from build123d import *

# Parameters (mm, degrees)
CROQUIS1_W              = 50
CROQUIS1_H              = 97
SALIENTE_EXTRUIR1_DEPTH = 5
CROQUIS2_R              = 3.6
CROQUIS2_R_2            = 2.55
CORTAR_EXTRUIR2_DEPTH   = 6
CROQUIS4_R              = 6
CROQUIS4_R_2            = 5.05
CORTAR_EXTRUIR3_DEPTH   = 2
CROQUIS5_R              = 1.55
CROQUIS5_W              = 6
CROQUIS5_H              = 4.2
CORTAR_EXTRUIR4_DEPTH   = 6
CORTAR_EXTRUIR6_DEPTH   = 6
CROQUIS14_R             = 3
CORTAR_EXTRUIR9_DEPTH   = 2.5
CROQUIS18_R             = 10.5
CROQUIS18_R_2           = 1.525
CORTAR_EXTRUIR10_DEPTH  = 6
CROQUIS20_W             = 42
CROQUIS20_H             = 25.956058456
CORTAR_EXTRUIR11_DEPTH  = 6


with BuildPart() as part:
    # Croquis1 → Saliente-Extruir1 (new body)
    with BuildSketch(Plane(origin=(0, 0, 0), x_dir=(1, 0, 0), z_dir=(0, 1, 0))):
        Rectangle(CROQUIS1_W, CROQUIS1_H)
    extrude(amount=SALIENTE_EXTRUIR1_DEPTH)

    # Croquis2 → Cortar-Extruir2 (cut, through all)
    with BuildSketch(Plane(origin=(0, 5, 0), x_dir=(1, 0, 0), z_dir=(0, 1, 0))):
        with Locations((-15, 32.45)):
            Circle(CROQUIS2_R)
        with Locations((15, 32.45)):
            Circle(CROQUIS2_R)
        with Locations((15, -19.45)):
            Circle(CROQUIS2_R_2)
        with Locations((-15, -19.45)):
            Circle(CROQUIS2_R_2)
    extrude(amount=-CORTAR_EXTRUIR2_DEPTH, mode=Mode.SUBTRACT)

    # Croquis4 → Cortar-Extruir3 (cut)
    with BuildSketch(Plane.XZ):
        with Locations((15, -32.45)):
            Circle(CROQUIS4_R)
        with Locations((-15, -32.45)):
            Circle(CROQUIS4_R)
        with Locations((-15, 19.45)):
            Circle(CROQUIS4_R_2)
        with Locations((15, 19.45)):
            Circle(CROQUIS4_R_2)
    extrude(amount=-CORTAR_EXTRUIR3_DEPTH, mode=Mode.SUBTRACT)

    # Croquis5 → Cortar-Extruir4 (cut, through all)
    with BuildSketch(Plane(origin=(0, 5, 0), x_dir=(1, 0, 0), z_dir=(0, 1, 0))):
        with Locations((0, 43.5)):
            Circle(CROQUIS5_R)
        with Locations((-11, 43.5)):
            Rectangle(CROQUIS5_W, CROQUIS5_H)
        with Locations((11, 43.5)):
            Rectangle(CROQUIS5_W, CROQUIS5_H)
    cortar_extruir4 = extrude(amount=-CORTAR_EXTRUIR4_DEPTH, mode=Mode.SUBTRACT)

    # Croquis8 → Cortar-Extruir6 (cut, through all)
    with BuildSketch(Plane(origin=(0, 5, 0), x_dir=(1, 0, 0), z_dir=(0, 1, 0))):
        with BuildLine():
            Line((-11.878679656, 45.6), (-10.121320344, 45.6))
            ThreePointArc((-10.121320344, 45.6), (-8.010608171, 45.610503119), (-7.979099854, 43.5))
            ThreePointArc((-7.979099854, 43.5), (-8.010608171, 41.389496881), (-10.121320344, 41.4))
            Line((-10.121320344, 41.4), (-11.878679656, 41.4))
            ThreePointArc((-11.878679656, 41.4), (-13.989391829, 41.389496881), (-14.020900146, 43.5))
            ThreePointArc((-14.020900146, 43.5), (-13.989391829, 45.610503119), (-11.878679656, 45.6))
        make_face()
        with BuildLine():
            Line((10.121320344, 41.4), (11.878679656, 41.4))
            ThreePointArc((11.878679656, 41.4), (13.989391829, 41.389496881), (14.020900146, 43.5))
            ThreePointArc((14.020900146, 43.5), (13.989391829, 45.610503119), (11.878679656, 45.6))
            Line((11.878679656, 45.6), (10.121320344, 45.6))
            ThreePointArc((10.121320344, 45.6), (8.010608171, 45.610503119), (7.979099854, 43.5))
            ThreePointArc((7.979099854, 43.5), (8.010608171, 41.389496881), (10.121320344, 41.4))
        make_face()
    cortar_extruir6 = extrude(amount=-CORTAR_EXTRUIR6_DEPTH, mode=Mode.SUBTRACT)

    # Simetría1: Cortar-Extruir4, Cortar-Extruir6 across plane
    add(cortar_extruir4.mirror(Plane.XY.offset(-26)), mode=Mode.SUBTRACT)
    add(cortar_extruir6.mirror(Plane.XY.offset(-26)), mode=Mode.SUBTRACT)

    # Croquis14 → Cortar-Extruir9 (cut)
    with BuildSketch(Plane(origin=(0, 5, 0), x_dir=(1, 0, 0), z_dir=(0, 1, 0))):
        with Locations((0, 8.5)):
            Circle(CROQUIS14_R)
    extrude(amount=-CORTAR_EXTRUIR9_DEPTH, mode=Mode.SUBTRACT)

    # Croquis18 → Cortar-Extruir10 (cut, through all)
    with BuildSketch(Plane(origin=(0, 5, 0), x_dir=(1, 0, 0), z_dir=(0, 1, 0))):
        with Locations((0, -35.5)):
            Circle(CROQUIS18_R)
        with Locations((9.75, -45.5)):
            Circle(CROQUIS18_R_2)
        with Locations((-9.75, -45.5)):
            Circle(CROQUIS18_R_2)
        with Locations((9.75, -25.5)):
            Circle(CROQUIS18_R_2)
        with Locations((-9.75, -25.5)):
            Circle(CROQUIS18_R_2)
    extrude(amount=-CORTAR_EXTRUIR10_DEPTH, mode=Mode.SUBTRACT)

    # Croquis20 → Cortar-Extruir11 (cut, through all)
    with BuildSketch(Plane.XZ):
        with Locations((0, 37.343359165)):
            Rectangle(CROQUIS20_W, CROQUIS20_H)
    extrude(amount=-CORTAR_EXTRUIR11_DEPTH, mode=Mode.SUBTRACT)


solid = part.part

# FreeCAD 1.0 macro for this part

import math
import FreeCAD as App
import Part
import Sketcher

V = App.Vector


def add_polygon(sketch, points):
    """Adds a closed chain of lines whose ends are joined by coincident constraints."""
    first, n = sketch.GeometryCount, len(points)
    for a, b in zip(points, points[1:] + points[:1]):
        sketch.addGeometry(Part.LineSegment(App.Vector(*a, 0), App.Vector(*b, 0)), False)
    for i in range(n):
        sketch.addConstraint(Sketcher.Constraint("Coincident", first + i, 2, first + (i + 1) % n, 1))

doc = App.newDocument("Part")
body = doc.addObject("PartDesign::Body", "Body")

sketch1 = body.newObject("Sketcher::SketchObject", "Sketch")
sketch1.AttachmentSupport = (doc.getObject("XZ_Plane"), [""])
sketch1.MapMode = "FlatFace"
add_polygon(sketch1, [(-25, -48.5), (-25, 48.5), (25, 48.5), (25, -48.5)])
sketch1.addConstraint([
    Sketcher.Constraint("Vertical", 0),
    Sketcher.Constraint("Horizontal", 1),
    Sketcher.Constraint("Vertical", 2),
    Sketcher.Constraint("Horizontal", 3),
    Sketcher.Constraint("Symmetric", 0, 2, 2, 2, -1, 1),
    Sketcher.Constraint("DistanceX", 1, 1, 1, 2, 50.0),
    Sketcher.Constraint("DistanceY", 0, 1, 0, 2, 97.0),
])
pad1 = body.newObject("PartDesign::Pad", "Pad")
pad1.Profile = sketch1
pad1.Length = 5
pad1.Reversed = True

sketch2 = body.newObject("Sketcher::SketchObject", "Sketch001")
sketch2.AttachmentSupport = (doc.getObject("XZ_Plane"), [""])
sketch2.MapMode = "FlatFace"
sketch2.AttachmentOffset = App.Placement(V(0, 0, -5), App.Rotation())
sketch2.addGeometry([
    Part.Circle(V(-15, -32.45, 0), V(0, 0, 1), 3.6),
    Part.Circle(V(15, -32.45, 0), V(0, 0, 1), 3.6),
    Part.Circle(V(15, 19.45, 0), V(0, 0, 1), 2.55),
    Part.Circle(V(-15, 19.45, 0), V(0, 0, 1), 2.55),
], False)
sketch2.addConstraint([
    Sketcher.Constraint("Equal", 0, 1),
    Sketcher.Constraint("Equal", 2, 3),
    Sketcher.Constraint("Symmetric", 0, 3, 1, 3, -2),
    Sketcher.Constraint("Symmetric", 2, 3, 3, 3, -2),
    Sketcher.Constraint("Vertical", 1, 3, 2, 3),
    Sketcher.Constraint("Diameter", 0, 7.2),
    Sketcher.Constraint("Diameter", 2, 5.1),
    Sketcher.Constraint("DistanceX", 0, 3, -1, 1, 15.0),
    Sketcher.Constraint("DistanceY", 1, 3, 2, 3, 51.9),
    Sketcher.Constraint("DistanceY", 0, 3, -1, 1, 32.45),
])
pocket1 = body.newObject("PartDesign::Pocket", "Pocket")
pocket1.Profile = sketch2
pocket1.Type = "ThroughAll"
pocket1.Reversed = True

sketch3 = body.newObject("Sketcher::SketchObject", "Sketch002")
sketch3.AttachmentSupport = (doc.getObject("XZ_Plane"), [""])
sketch3.MapMode = "FlatFace"
sketch3.addGeometry([
    Part.Circle(V(15, -32.45, 0), V(0, 0, 1), 6),
    Part.Circle(V(-15, -32.45, 0), V(0, 0, 1), 6),
    Part.Circle(V(-15, 19.45, 0), V(0, 0, 1), 5.05),
    Part.Circle(V(15, 19.45, 0), V(0, 0, 1), 5.05),
], False)
sketch3.addConstraint([
    Sketcher.Constraint("Equal", 0, 1),
    Sketcher.Constraint("Equal", 2, 3),
    Sketcher.Constraint("Symmetric", 0, 3, 1, 3, -2),
    Sketcher.Constraint("Symmetric", 2, 3, 3, 3, -2),
    Sketcher.Constraint("Vertical", 1, 3, 2, 3),
    Sketcher.Constraint("Diameter", 0, 12.0),
    Sketcher.Constraint("Diameter", 2, 10.1),
    Sketcher.Constraint("DistanceX", -1, 1, 0, 3, 15.0),
    Sketcher.Constraint("DistanceY", 1, 3, 2, 3, 51.9),
    Sketcher.Constraint("DistanceY", 0, 3, -1, 1, 32.45),
])
pocket2 = body.newObject("PartDesign::Pocket", "Pocket001")
pocket2.Profile = sketch3
pocket2.Length = 2

sketch4 = body.newObject("Sketcher::SketchObject", "Sketch003")
sketch4.AttachmentSupport = (doc.getObject("XZ_Plane"), [""])
sketch4.MapMode = "FlatFace"
sketch4.AttachmentOffset = App.Placement(V(0, 0, -5), App.Rotation())
sketch4.addGeometry(Part.Circle(V(0, -43.5, 0), V(0, 0, 1), 1.55), False)
add_polygon(sketch4, [(-14, -45.6), (-14, -41.4), (-8, -41.4), (-8, -45.6)])
add_polygon(sketch4, [(8, -45.6), (8, -41.4), (14, -41.4), (14, -45.6)])
sketch4.addConstraint([
    Sketcher.Constraint("Vertical", 1),
    Sketcher.Constraint("Horizontal", 2),
    Sketcher.Constraint("Vertical", 3),
    Sketcher.Constraint("Horizontal", 4),
    Sketcher.Constraint("Vertical", 5),
    Sketcher.Constraint("Horizontal", 6),
    Sketcher.Constraint("Vertical", 7),
    Sketcher.Constraint("Horizontal", 8),
    Sketcher.Constraint("Symmetric", 2, 2, 5, 2, -2),
    Sketcher.Constraint("Symmetric", 4, 2, 7, 2, -2),
    Sketcher.Constraint("PointOnObject", 0, 3, -2),
    Sketcher.Constraint("Diameter", 0, 3.1),
    Sketcher.Constraint("DistanceX", 2, 1, 2, 2, 6.0),
    Sketcher.Constraint("DistanceY", 1, 1, 1, 2, 4.2),
    Sketcher.Constraint("DistanceX", 1, 2, -1, 1, 14.0),
    Sketcher.Constraint("DistanceY", 0, 3, -1, 1, 43.5),
    Sketcher.Constraint("DistanceY", 1, 2, -1, 1, 41.4),
])
pocket3 = body.newObject("PartDesign::Pocket", "Pocket002")
pocket3.Profile = sketch4
pocket3.Type = "ThroughAll"
pocket3.Reversed = True

sketch5 = body.newObject("Sketcher::SketchObject", "Sketch004")
sketch5.AttachmentSupport = (doc.getObject("XZ_Plane"), [""])
sketch5.MapMode = "FlatFace"
sketch5.AttachmentOffset = App.Placement(V(0, 0, -5), App.Rotation())
sketch5.addGeometry([
    Part.LineSegment(V(-10.12132, -45.6, 0), V(-11.87868, -45.6, 0)),
    Part.ArcOfCircle(Part.Circle(V(-12.93934, -44.53934, 0), V(0, 0, 1), 1.5), math.radians(136.140429), math.radians(315)),
    Part.ArcOfCircle(Part.Circle(V(-12.93934, -42.46066, 0), V(0, 0, 1), 1.5), math.radians(45), math.radians(223.859571)),
    Part.LineSegment(V(-11.87868, -41.4, 0), V(-10.12132, -41.4, 0)),
    Part.ArcOfCircle(Part.Circle(V(-9.06066, -42.46066, 0), V(0, 0, 1), 1.5), math.radians(-43.859571), math.radians(135)),
    Part.ArcOfCircle(Part.Circle(V(-9.06066, -44.53934, 0), V(0, 0, 1), 1.5), math.radians(-135), math.radians(43.859571)),
    Part.LineSegment(V(10.12132, -41.4, 0), V(11.87868, -41.4, 0)),
    Part.ArcOfCircle(Part.Circle(V(12.93934, -42.46066, 0), V(0, 0, 1), 1.5), math.radians(-43.859571), math.radians(135)),
    Part.ArcOfCircle(Part.Circle(V(12.93934, -44.53934, 0), V(0, 0, 1), 1.5), math.radians(-135), math.radians(43.859571)),
    Part.LineSegment(V(11.87868, -45.6, 0), V(10.12132, -45.6, 0)),
    Part.ArcOfCircle(Part.Circle(V(9.06066, -44.53934, 0), V(0, 0, 1), 1.5), math.radians(136.140429), math.radians(315)),
    Part.ArcOfCircle(Part.Circle(V(9.06066, -42.46066, 0), V(0, 0, 1), 1.5), math.radians(45), math.radians(223.859571)),
], False)
sketch5.addConstraint([
    Sketcher.Constraint("Coincident", 0, 2, 1, 2),
    Sketcher.Constraint("Coincident", 1, 1, 2, 2),
    Sketcher.Constraint("Coincident", 2, 1, 3, 1),
    Sketcher.Constraint("Coincident", 3, 2, 4, 2),
    Sketcher.Constraint("Coincident", 4, 1, 5, 2),
    Sketcher.Constraint("Coincident", 5, 1, 0, 1),
    Sketcher.Constraint("Coincident", 6, 2, 7, 2),
    Sketcher.Constraint("Coincident", 7, 1, 8, 2),
    Sketcher.Constraint("Coincident", 8, 1, 9, 1),
    Sketcher.Constraint("Coincident", 9, 2, 10, 2),
    Sketcher.Constraint("Coincident", 10, 1, 11, 2),
    Sketcher.Constraint("Coincident", 11, 1, 6, 1),
    Sketcher.Constraint("Horizontal", 0),
    Sketcher.Constraint("Horizontal", 3),
    Sketcher.Constraint("Horizontal", 6),
    Sketcher.Constraint("Horizontal", 9),
    Sketcher.Constraint("Equal", 1, 2),
    Sketcher.Constraint("Equal", 2, 4),
    Sketcher.Constraint("Equal", 4, 5),
    Sketcher.Constraint("Equal", 5, 7),
    Sketcher.Constraint("Equal", 7, 8),
    Sketcher.Constraint("Equal", 8, 10),
    Sketcher.Constraint("Equal", 10, 11),
    Sketcher.Constraint("Symmetric", 2, 3, 7, 3, -2),
    Sketcher.Constraint("Symmetric", 1, 3, 8, 3, -2),
    Sketcher.Constraint("Symmetric", 5, 3, 10, 3, -2),
    Sketcher.Constraint("Symmetric", 4, 3, 11, 3, -2),
    Sketcher.Constraint("Horizontal", 2, 3, 4, 3),
    Sketcher.Constraint("Horizontal", 1, 3, 5, 3),
    Sketcher.Constraint("Horizontal", 1, 1, 4, 1),
    Sketcher.Constraint("Horizontal", 3, 2, 6, 2),
    Sketcher.Constraint("Horizontal", 5, 1, 8, 1),
    Sketcher.Constraint("Vertical", 1, 3, 2, 3),
    Sketcher.Constraint("Vertical", 0, 2, 2, 1),
    Sketcher.Constraint("Radius", 1, 1.5),
    Sketcher.Constraint("DistanceX", 4, 3, 7, 3, 22.0),
    Sketcher.Constraint("DistanceY", 0, 2, -1, 1, 45.6),
    Sketcher.Constraint("DistanceY", 1, 1, -1, 1, 43.5),
    Sketcher.Constraint("DistanceX", 0, 2, 0, 1, 1.757359),
    Sketcher.Constraint("DistanceX", 1, 1, -1, 1, 14.0209),
])
pocket4 = body.newObject("PartDesign::Pocket", "Pocket003")
pocket4.Profile = sketch5
pocket4.Type = "ThroughAll"
pocket4.Reversed = True
doc.recompute()

datumplane = body.newObject("PartDesign::Plane", "DatumPlane")
datumplane.AttachmentSupport = (doc.getObject("XY_Plane"), [""])
datumplane.MapMode = "FlatFace"
datumplane.AttachmentOffset = App.Placement(V(0, 0, -26), App.Rotation())
mirrored = body.newObject("PartDesign::Mirrored", "Mirrored")
mirrored.Originals = [pocket3, pocket4]
mirrored.MirrorPlane = (datumplane, [""])
body.Tip = mirrored

sketch6 = body.newObject("Sketcher::SketchObject", "Sketch005")
sketch6.AttachmentSupport = (doc.getObject("XZ_Plane"), [""])
sketch6.MapMode = "FlatFace"
sketch6.AttachmentOffset = App.Placement(V(0, 0, -5), App.Rotation())
sketch6.addGeometry(Part.Circle(V(0, -8.5, 0), V(0, 0, 1), 3), False)
sketch6.addConstraint([
    Sketcher.Constraint("PointOnObject", 0, 3, -2),
    Sketcher.Constraint("Diameter", 0, 6.0),
    Sketcher.Constraint("DistanceY", 0, 3, -1, 1, 8.5),
])
pocket5 = body.newObject("PartDesign::Pocket", "Pocket004")
pocket5.Profile = sketch6
pocket5.Length = 2.5
pocket5.Reversed = True

sketch7 = body.newObject("Sketcher::SketchObject", "Sketch006")
sketch7.AttachmentSupport = (doc.getObject("XZ_Plane"), [""])
sketch7.MapMode = "FlatFace"
sketch7.AttachmentOffset = App.Placement(V(0, 0, -5), App.Rotation())
sketch7.addGeometry([
    Part.Circle(V(0, 35.5, 0), V(0, 0, 1), 10.5),
    Part.Circle(V(9.75, 45.5, 0), V(0, 0, 1), 1.525),
    Part.Circle(V(-9.75, 45.5, 0), V(0, 0, 1), 1.525),
    Part.Circle(V(9.75, 25.5, 0), V(0, 0, 1), 1.525),
    Part.Circle(V(-9.75, 25.5, 0), V(0, 0, 1), 1.525),
], False)
sketch7.addConstraint([
    Sketcher.Constraint("Equal", 1, 2),
    Sketcher.Constraint("Equal", 2, 3),
    Sketcher.Constraint("Equal", 3, 4),
    Sketcher.Constraint("Symmetric", 1, 3, 2, 3, -2),
    Sketcher.Constraint("Symmetric", 3, 3, 4, 3, -2),
    Sketcher.Constraint("PointOnObject", 0, 3, -2),
    Sketcher.Constraint("Vertical", 1, 3, 3, 3),
    Sketcher.Constraint("Diameter", 0, 21.0),
    Sketcher.Constraint("Diameter", 1, 3.05),
    Sketcher.Constraint("DistanceY", 0, 3, 1, 3, 10.0),
    Sketcher.Constraint("DistanceY", 3, 3, 0, 3, 10.0),
    Sketcher.Constraint("DistanceY", -1, 1, 0, 3, 35.5),
    Sketcher.Constraint("DistanceX", 2, 3, 1, 3, 19.5),
])
pocket6 = body.newObject("PartDesign::Pocket", "Pocket005")
pocket6.Profile = sketch7
pocket6.Type = "ThroughAll"
pocket6.Reversed = True

sketch8 = body.newObject("Sketcher::SketchObject", "Sketch007")
sketch8.AttachmentSupport = (doc.getObject("XZ_Plane"), [""])
sketch8.MapMode = "FlatFace"
add_polygon(sketch8, [(-21, 50.321388), (-21, 24.36533), (21, 24.36533), (21, 50.321388)])
sketch8.addConstraint([
    Sketcher.Constraint("Vertical", 0),
    Sketcher.Constraint("Horizontal", 1),
    Sketcher.Constraint("Vertical", 2),
    Sketcher.Constraint("Horizontal", 3),
    Sketcher.Constraint("DistanceX", 1, 1, 1, 2, 42.0),
    Sketcher.Constraint("DistanceX", 0, 2, -1, 1, 21.0),
    Sketcher.Constraint("DistanceY", 0, 2, 0, 1, 25.956058),
    Sketcher.Constraint("DistanceY", -1, 1, 0, 2, 24.36533),
])
pocket7 = body.newObject("PartDesign::Pocket", "Pocket006")
pocket7.Profile = sketch8
pocket7.Type = "ThroughAll"

doc.recompute()
